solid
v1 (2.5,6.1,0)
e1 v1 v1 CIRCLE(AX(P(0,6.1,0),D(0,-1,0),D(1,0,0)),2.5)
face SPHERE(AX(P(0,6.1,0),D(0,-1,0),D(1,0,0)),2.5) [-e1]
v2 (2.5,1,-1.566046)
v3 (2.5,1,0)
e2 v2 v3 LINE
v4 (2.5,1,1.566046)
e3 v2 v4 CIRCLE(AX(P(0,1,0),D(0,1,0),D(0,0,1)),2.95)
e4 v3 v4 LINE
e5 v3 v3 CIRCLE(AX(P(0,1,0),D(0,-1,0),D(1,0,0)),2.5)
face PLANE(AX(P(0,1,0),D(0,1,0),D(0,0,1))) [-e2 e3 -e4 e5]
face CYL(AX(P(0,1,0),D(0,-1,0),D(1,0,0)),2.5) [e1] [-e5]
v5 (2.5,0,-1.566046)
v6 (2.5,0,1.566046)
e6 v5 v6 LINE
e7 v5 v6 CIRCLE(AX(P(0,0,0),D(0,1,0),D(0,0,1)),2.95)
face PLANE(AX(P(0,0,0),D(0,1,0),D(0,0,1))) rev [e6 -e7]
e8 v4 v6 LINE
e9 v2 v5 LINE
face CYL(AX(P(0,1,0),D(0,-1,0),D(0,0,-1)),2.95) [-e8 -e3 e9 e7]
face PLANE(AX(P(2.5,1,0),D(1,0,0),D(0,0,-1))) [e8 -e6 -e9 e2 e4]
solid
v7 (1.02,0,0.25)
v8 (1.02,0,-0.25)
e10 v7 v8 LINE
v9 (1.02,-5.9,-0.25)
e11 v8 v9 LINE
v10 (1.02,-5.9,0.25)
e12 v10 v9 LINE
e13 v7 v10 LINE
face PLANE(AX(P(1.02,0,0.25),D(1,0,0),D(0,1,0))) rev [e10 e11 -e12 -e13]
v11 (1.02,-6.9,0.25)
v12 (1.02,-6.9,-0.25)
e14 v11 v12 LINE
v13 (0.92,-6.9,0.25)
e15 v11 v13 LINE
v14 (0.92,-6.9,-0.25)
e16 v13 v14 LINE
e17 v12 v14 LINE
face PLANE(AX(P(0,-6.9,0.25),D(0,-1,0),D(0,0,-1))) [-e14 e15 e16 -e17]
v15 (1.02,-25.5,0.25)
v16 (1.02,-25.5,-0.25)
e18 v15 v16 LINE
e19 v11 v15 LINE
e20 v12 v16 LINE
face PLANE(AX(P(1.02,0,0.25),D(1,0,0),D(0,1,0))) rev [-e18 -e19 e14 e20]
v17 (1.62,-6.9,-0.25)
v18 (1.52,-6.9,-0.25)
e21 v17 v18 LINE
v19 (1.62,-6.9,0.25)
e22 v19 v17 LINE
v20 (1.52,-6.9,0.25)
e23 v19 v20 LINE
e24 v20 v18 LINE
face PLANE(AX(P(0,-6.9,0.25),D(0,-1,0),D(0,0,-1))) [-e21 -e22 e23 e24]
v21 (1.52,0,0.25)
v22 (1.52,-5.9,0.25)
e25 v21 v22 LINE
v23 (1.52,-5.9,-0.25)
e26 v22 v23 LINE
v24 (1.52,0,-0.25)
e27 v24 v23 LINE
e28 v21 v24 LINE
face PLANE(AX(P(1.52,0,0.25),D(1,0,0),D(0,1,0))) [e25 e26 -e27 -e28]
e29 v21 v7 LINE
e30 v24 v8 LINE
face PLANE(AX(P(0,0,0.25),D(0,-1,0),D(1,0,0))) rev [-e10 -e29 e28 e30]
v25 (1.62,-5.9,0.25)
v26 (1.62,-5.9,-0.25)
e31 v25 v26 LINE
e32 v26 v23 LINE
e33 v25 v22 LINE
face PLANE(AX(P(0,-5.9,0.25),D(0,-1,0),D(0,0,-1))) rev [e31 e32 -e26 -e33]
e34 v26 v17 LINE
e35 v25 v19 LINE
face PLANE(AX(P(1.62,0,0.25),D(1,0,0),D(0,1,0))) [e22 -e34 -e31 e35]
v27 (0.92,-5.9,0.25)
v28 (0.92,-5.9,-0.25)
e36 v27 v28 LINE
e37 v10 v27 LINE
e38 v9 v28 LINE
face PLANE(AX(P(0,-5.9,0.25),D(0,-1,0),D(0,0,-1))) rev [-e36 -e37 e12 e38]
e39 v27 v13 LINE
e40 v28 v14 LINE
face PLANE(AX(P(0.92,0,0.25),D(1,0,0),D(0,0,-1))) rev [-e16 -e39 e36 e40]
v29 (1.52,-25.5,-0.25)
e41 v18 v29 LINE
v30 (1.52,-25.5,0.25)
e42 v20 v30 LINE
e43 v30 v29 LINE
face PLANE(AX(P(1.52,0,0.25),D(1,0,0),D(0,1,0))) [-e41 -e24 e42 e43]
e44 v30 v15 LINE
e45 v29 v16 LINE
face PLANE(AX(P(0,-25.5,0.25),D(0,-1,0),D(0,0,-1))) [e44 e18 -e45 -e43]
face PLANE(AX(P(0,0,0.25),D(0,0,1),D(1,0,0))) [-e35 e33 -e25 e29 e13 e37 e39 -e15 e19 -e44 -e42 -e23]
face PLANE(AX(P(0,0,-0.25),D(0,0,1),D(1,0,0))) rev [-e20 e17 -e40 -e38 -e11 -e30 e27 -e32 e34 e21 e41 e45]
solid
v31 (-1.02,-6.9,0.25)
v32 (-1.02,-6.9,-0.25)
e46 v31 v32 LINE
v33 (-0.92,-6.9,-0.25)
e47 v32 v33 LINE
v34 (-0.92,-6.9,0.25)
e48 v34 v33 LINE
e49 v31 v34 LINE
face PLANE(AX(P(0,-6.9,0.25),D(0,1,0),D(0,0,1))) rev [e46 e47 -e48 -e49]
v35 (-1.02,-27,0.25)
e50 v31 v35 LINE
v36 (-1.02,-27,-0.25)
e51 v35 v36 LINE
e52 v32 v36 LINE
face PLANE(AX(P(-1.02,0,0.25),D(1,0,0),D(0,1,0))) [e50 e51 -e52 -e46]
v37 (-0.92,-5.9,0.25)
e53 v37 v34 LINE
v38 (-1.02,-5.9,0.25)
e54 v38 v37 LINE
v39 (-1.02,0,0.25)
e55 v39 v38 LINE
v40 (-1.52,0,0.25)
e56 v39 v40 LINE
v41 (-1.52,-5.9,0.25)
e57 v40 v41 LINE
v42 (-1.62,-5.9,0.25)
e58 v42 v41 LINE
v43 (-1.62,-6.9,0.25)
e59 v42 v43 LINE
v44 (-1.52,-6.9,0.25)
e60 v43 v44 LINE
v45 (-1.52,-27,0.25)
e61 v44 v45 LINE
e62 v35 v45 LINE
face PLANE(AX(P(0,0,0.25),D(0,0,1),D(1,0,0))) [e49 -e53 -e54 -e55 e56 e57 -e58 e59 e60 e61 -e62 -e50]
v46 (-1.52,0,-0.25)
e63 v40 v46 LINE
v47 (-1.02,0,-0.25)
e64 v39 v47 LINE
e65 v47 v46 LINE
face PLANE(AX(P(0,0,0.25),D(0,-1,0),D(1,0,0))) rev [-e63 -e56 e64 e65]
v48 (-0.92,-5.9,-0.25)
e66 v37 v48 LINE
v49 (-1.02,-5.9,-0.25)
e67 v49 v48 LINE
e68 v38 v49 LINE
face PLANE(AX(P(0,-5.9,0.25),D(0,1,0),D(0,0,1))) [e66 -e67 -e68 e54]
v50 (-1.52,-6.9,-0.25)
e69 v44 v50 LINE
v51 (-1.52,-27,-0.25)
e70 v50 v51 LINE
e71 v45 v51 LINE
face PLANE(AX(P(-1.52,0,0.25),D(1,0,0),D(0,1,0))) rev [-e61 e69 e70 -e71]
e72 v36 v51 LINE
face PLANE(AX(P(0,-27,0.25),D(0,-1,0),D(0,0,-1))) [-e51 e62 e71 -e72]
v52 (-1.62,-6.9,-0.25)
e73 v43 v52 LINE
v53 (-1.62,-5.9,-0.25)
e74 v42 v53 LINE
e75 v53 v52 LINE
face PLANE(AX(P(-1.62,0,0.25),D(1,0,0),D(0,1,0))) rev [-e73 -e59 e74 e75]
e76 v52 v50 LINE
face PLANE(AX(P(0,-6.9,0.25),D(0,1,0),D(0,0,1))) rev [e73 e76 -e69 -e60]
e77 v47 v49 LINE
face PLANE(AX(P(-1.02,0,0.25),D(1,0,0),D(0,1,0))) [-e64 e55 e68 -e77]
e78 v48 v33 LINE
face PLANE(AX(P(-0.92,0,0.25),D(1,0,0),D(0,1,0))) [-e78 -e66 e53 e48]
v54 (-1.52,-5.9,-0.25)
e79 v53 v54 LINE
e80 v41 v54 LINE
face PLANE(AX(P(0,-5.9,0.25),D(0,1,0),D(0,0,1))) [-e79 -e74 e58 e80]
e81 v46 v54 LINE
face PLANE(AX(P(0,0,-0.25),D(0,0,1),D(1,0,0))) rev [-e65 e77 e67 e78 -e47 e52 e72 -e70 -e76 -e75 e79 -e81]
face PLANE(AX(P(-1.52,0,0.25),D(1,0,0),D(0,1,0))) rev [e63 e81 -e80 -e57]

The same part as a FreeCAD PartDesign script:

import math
import FreeCAD as App
import Part
import Sketcher
from FreeCAD import Vector
Q = App.Units.Quantity


def add_polygon(sketch, points):
    """Adds a closed chain of lines whose ends are joined by coincident constraints."""
    first, n = sketch.GeometryCount, len(points)
    for a, b in zip(points, points[1:] + points[:1]):
        sketch.addGeometry(Part.LineSegment(App.Vector(*a, 0), App.Vector(*b, 0)), False)
    for i in range(n):
        sketch.addConstraint(Sketcher.Constraint("Coincident", first + i, 2, first + (i + 1) % n, 1))

doc = App.newDocument("Part")
body = doc.addObject("PartDesign::Body", "Body")

sketch1 = body.newObject("Sketcher::SketchObject", "Sketch")
sketch1.AttachmentSupport = (doc.getObject("XZ_Plane"), [""])
sketch1.MapMode = "FlatFace"
sketch1.addGeometry([
    Part.LineSegment(Vector(2.5, 1.6, 0), Vector(2.5, -1.6, 0)),
    Part.ArcOfCircle(Part.Circle(Vector(0, 0, 0), Vector(0, 0, 1), 3), math.radians(32), math.radians(328)),
], False)
sketch1.addConstraint([
    Sketcher.Constraint("Coincident", 0, 1, 1, 1),
    Sketcher.Constraint("Coincident", 1, 2, 0, 2),
    Sketcher.Constraint("Vertical", 0),
    Sketcher.Constraint("Coincident", 1, 3, -1, 1),
    Sketcher.Constraint("Radius", 1, Q("2.95 mm")),
    Sketcher.Constraint("DistanceX", -1, 1, 0, 1, Q("2.5 mm")),
])
pad1 = body.newObject("PartDesign::Pad", "Pad")
pad1.Profile = sketch1
pad1.Length = 1
pad1.Reversed = True

sketch2 = body.newObject("Sketcher::SketchObject", "Sketch001")
sketch2.AttachmentSupport = (doc.getObject("XY_Plane"), [""])
sketch2.MapMode = "FlatFace"
sketch2.addGeometry([
    Part.LineSegment(Vector(0, 8.6, 0), Vector(0, 1, 0)),
    Part.LineSegment(Vector(0, 1, 0), Vector(2.5, 1, 0)),
    Part.LineSegment(Vector(2.5, 1, 0), Vector(2.5, 6.1, 0)),
    Part.ArcOfCircle(Part.Circle(Vector(0, 6.1, 0), Vector(0, 0, 1), 2.5), math.radians(0), math.radians(90)),
], False)
sketch2.addConstraint([
    Sketcher.Constraint("Coincident", 0, 2, 1, 1),
    Sketcher.Constraint("Coincident", 1, 2, 2, 1),
    Sketcher.Constraint("Tangent", 2, 2, 3, 1),
    Sketcher.Constraint("Coincident", 3, 2, 0, 1),
    Sketcher.Constraint("Vertical", 0),
    Sketcher.Constraint("Horizontal", 1),
    Sketcher.Constraint("Vertical", 2),
    Sketcher.Constraint("PointOnObject", 3, 3, -2),
    Sketcher.Constraint("PointOnObject", 0, 2, -2),
    Sketcher.Constraint("Radius", 3, Q("2.5 mm")),
    Sketcher.Constraint("DistanceY", 0, 2, 0, 1, Q("7.6 mm")),
    Sketcher.Constraint("DistanceY", -1, 1, 0, 2, Q("1 mm")),
])
revolution = body.newObject("PartDesign::Revolution", "Revolution")
revolution.Profile = sketch2
revolution.ReferenceAxis = (sketch2, ["V_Axis"])
revolution.Angle = 360
body2 = doc.addObject("PartDesign::Body", "Body001")
body2.AllowCompound = True

sketch3 = body2.newObject("Sketcher::SketchObject", "Sketch002")
sketch3.AttachmentSupport = (doc.getObject("XY_Plane001"), [""])
sketch3.MapMode = "FlatFace"
add_polygon(sketch3, [(-1.52, 0), (-1.52, -5.9), (-1.62, -5.9), (-1.62, -6.9), (-1.52, -6.9), (-1.52, -27), (-1.02, -27), (-1.02, -6.9), (-0.92, -6.9), (-0.92, -5.9), (-1.02, -5.9), (-1.02, 0)])
add_polygon(sketch3, [(1.02, 0), (1.02, -5.9), (0.92, -5.9), (0.92, -6.9), (1.02, -6.9), (1.02, -25.5), (1.52, -25.5), (1.52, -6.9), (1.62, -6.9), (1.62, -5.9), (1.52, -5.9), (1.52, 0)])
sketch3.addConstraint([
    Sketcher.Constraint("Vertical", 0),
    Sketcher.Constraint("Horizontal", 1),
    Sketcher.Constraint("Vertical", 2),
    Sketcher.Constraint("Horizontal", 3),
    Sketcher.Constraint("Vertical", 4),
    Sketcher.Constraint("Horizontal", 5),
    Sketcher.Constraint("Vertical", 6),
    Sketcher.Constraint("Horizontal", 7),
    Sketcher.Constraint("Vertical", 8),
    Sketcher.Constraint("Horizontal", 9),
    Sketcher.Constraint("Vertical", 10),
    Sketcher.Constraint("Horizontal", 11),
    Sketcher.Constraint("Vertical", 12),
    Sketcher.Constraint("Horizontal", 13),
    Sketcher.Constraint("Vertical", 14),
    Sketcher.Constraint("Horizontal", 15),
    Sketcher.Constraint("Vertical", 16),
    Sketcher.Constraint("Horizontal", 17),
    Sketcher.Constraint("Vertical", 18),
    Sketcher.Constraint("Horizontal", 19),
    Sketcher.Constraint("Vertical", 20),
    Sketcher.Constraint("Horizontal", 21),
    Sketcher.Constraint("Vertical", 22),
    Sketcher.Constraint("Horizontal", 23),
    Sketcher.Constraint("Symmetric", 11, 2, 22, 2, -1, 1),
    Sketcher.Constraint("Symmetric", 9, 2, 12, 2, -2),
    Sketcher.Constraint("Symmetric", 7, 2, 14, 2, -2),
    Sketcher.Constraint("Symmetric", 3, 2, 18, 2, -2),
    Sketcher.Constraint("Symmetric", 1, 2, 20, 2, -2),
    Sketcher.Constraint("PointOnObject", 10, 2, -1),
    Sketcher.Constraint("Horizontal", 3, 2, 6, 2),
    Sketcher.Constraint("Horizontal", 1, 2, 8, 2),
    Sketcher.Constraint("Vertical", 0, 2, 3, 2),
    Sketcher.Constraint("Vertical", 6, 2, 9, 2),
    Sketcher.Constraint("Vertical", 12, 2, 15, 2),
    Sketcher.Constraint("Equal", 3, 7),
    Sketcher.Constraint("DistanceY", 2, 2, 2, 1, Q("1 mm")),
    Sketcher.Constraint("DistanceX", 1, 2, 1, 1, Q("0.1 mm")),
    Sketcher.Constraint("DistanceX", 5, 1, 5, 2, Q("0.5 mm")),
    Sketcher.Constraint("DistanceY", 0, 2, 0, 1, Q("5.9 mm")),
    Sketcher.Constraint("DistanceY", 4, 2, 4, 1, Q("20.1 mm")),
    Sketcher.Constraint("DistanceY", 16, 2, 16, 1, Q("18.6 mm")),
    Sketcher.Constraint("DistanceX", 0, 2, -1, 1, Q("1.52 mm")),
])
pad2 = body2.newObject("PartDesign::Pad", "Pad001")
pad2.Profile = sketch3
pad2.Length = 0.5
pad2.Midplane = True

doc.recompute()
